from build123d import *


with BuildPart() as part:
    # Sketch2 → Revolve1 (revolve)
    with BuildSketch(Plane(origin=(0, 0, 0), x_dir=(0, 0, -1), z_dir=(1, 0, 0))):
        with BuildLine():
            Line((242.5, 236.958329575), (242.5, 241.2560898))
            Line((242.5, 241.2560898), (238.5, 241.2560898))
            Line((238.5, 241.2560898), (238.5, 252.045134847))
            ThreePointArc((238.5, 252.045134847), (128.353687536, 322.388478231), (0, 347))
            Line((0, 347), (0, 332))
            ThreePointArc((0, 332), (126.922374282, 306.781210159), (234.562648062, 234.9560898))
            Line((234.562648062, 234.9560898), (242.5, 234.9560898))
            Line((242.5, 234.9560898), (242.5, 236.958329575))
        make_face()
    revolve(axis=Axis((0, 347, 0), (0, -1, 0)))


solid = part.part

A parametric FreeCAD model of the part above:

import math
import FreeCAD as App
import Part
import Sketcher
Q = App.Units.Quantity

doc = App.newDocument("Part")
body = doc.addObject("PartDesign::Body", "Body")

# Sketch on YZ plane
sketch1 = body.newObject("Sketcher::SketchObject", "Sketch")
sketch1.AttachmentSupport = (doc.getObject("YZ_Plane"), [""])
sketch1.MapMode = "FlatFace"
sketch1.addGeometry([
    Part.LineSegment(App.Vector(241.25609, -242.5, 0), App.Vector(241.25609, -238.5, 0)),  # 0
    Part.LineSegment(App.Vector(241.25609, -238.5, 0), App.Vector(252.045135, -238.5, 0)),  # 1
    Part.ArcOfCircle(Part.Circle(App.Vector(0, 0, 0), App.Vector(0, 0, 1), 347), math.radians(-43.418327), math.radians(0)),  # 2
    Part.LineSegment(App.Vector(347, 0, 0), App.Vector(332, 0, 0)),  # 3
    Part.ArcOfCircle(Part.Circle(App.Vector(0, 0, 0), App.Vector(0, 0, 1), 332), math.radians(-44.951988), math.radians(0)),  # 4
    Part.LineSegment(App.Vector(234.95609, -234.562648, 0), App.Vector(234.95609, -242.5, 0)),  # 5
    Part.LineSegment(App.Vector(234.95609, -242.5, 0), App.Vector(241.25609, -242.5, 0)),  # 6
], False)
sketch1.addConstraint([
    Sketcher.Constraint("Coincident", 0, 2, 1, 1),
    Sketcher.Constraint("Coincident", 1, 2, 2, 1),
    Sketcher.Constraint("Coincident", 2, 2, 3, 1),
    Sketcher.Constraint("Coincident", 3, 2, 4, 2),
    Sketcher.Constraint("Coincident", 4, 1, 5, 1),
    Sketcher.Constraint("Coincident", 5, 2, 6, 1),
    Sketcher.Constraint("Coincident", 6, 2, 0, 1),
    Sketcher.Constraint("Vertical", 0),
    Sketcher.Constraint("Horizontal", 1),
    Sketcher.Constraint("Horizontal", 3),
    Sketcher.Constraint("Vertical", 5),
    Sketcher.Constraint("Horizontal", 6),
    Sketcher.Constraint("Coincident", 2, 3, -1, 1),
    Sketcher.Constraint("Coincident", 4, 3, -1, 1),
    Sketcher.Constraint("PointOnObject", 2, 2, -1),
    Sketcher.Constraint("Radius", 2, Q("347 mm")),
    Sketcher.Constraint("Radius", 4, Q("332 mm")),
    Sketcher.Constraint("DistanceY", 0, 1, 0, 2, Q("4 mm")),
    Sketcher.Constraint("DistanceX", 6, 1, 6, 2, Q("6.3 mm")),
    Sketcher.Constraint("DistanceY", 0, 2, -1, 1, Q("238.5 mm")),
    Sketcher.Constraint("DistanceY", 5, 2, 5, 1, Q("7.937352 mm")),
])
revolution = body.newObject("PartDesign::Revolution", "Revolution")
revolution.Profile = sketch1
revolution.ReferenceAxis = (sketch1, ["H_Axis"])
revolution.Angle = 360

doc.recompute()
